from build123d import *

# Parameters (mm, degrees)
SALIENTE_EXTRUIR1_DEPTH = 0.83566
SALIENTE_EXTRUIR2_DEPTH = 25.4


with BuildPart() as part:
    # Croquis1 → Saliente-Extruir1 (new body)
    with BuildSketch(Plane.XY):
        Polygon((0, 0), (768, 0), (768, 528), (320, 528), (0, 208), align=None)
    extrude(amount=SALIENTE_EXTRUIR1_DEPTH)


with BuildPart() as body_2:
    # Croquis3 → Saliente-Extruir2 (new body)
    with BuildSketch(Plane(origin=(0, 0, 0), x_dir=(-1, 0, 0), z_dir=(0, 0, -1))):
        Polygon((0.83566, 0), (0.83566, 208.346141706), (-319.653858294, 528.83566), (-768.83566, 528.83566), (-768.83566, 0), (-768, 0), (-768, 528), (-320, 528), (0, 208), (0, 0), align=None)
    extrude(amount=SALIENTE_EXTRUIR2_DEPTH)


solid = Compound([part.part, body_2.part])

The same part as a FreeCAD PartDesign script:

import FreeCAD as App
import Part
import Sketcher
from FreeCAD import Vector
Q = App.Units.Quantity


def add_polygon(sketch, points):
    """Adds a closed chain of lines whose ends are joined by coincident constraints."""
    first, n = sketch.GeometryCount, len(points)
    for a, b in zip(points, points[1:] + points[:1]):
        sketch.addGeometry(Part.LineSegment(App.Vector(*a, 0), App.Vector(*b, 0)), False)
    for i in range(n):
        sketch.addConstraint(Sketcher.Constraint("Coincident", first + i, 2, first + (i + 1) % n, 1))

doc = App.newDocument("Part")
body = doc.addObject("PartDesign::Body", "Body")

# Sketch on XY plane
sketch1 = doc.addObject("Sketcher::SketchObject", "Sketch")
body.addObject(sketch1)
sketch1.AttachmentSupport = (doc.XY_Plane, [""])
sketch1.MapMode = "FlatFace"
add_polygon(sketch1, [(0, 0), (768, 0), (768, 528), (320, 528), (0, 208)])  # lines 0-4
sketch1.addConstraint([
    Sketcher.Constraint("Horizontal", 0),
    Sketcher.Constraint("Vertical", 1),
    Sketcher.Constraint("Horizontal", 2),
    Sketcher.Constraint("Vertical", 4),
    Sketcher.Constraint("Coincident", 4, 2, -1, 1),
    Sketcher.Constraint("DistanceX", 0, 1, 0, 2, Q("768 mm")),
    Sketcher.Constraint("DistanceX", 2, 2, 2, 1, Q("448 mm")),
    Sketcher.Constraint("DistanceY", 1, 1, 1, 2, Q("528 mm")),
    Sketcher.Constraint("DistanceY", 4, 2, 4, 1, Q("208 mm")),
])
pad1 = doc.addObject("PartDesign::Pad", "Pad")
body.addObject(pad1)
pad1.Profile = sketch1
pad1.Length = 0.83566
body2 = doc.addObject("PartDesign::Body", "Body001")

# Sketch on XY plane
sketch2 = doc.addObject("Sketcher::SketchObject", "Sketch001")
body2.addObject(sketch2)
sketch2.AttachmentSupport = (doc.getObject("XY_Plane001"), [""])
sketch2.MapMode = "FlatFace"
add_polygon(sketch2, [(-0.8, 0), (-0.8, 208.3), (319.7, 528.8), (768.8, 528.8), (768.8, 0), (768, 0), (768, 528), (320, 528), (0, 208), (0, 0)])  # lines 0-9
sketch2.addConstraint([
    Sketcher.Constraint("Vertical", 0),
    Sketcher.Constraint("Horizontal", 2),
    Sketcher.Constraint("Vertical", 3),
    Sketcher.Constraint("Horizontal", 4),
    Sketcher.Constraint("Vertical", 5),
    Sketcher.Constraint("Horizontal", 6),
    Sketcher.Constraint("Vertical", 8),
    Sketcher.Constraint("Horizontal", 9),
    Sketcher.Constraint("Coincident", 8, 2, -1, 1),
    Sketcher.Constraint("PointOnObject", 3, 2, -1),
    Sketcher.Constraint("Parallel", 1, 7),
    Sketcher.Constraint("Equal", 4, 9),
    Sketcher.Constraint("DistanceX", 6, 2, 6, 1, Q("448 mm")),
    Sketcher.Constraint("DistanceY", 5, 1, 5, 2, Q("528 mm")),
    Sketcher.Constraint("DistanceY", 8, 2, 8, 1, Q("208 mm")),
    Sketcher.Constraint("Angle", 1, Q("45 deg")),
    Sketcher.Constraint("DistanceX", 2, 1, 2, 2, Q("449.181802 mm")),
    Sketcher.Constraint("DistanceX", 4, 2, 4, 1, Q("0.83566 mm")),
    Sketcher.Constraint("DistanceY", 0, 1, 0, 2, Q("208.346142 mm")),
])
pad2 = doc.addObject("PartDesign::Pad", "Pad001")
body2.addObject(pad2)
pad2.Profile = sketch2
pad2.Length = 25.4
pad2.Reversed = True

doc.recompute()
